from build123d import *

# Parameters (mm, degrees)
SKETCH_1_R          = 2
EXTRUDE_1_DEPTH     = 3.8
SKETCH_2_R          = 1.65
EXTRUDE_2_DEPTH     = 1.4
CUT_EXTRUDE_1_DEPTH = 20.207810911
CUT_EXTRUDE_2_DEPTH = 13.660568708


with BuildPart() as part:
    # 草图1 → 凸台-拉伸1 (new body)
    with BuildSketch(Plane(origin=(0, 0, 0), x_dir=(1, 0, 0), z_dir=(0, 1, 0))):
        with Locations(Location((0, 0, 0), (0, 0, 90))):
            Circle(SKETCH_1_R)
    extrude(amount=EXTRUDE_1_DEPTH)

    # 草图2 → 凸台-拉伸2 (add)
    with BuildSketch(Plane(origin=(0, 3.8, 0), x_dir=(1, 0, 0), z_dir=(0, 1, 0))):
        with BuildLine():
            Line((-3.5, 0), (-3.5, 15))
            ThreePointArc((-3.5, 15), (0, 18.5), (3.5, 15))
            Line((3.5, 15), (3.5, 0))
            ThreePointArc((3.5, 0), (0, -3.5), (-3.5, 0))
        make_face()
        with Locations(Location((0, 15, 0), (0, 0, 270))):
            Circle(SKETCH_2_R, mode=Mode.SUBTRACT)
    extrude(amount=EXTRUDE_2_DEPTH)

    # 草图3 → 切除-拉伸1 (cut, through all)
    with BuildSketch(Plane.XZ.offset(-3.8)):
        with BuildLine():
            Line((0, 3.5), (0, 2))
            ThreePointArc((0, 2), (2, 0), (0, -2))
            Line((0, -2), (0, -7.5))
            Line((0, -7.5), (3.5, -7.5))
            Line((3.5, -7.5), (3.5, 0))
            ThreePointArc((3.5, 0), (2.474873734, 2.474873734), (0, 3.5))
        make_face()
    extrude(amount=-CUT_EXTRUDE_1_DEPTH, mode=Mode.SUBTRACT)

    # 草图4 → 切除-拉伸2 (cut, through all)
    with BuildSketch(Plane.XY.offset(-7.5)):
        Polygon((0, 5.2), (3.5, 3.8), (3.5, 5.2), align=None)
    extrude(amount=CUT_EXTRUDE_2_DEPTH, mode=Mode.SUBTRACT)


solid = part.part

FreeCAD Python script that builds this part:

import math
import FreeCAD as App
import Part
import Sketcher

V = App.Vector

doc = App.newDocument("Part")
body = doc.addObject("PartDesign::Body", "Body")

sketch1 = doc.addObject("Sketcher::SketchObject", "Sketch")
body.addObject(sketch1)
sketch1.AttachmentSupport = (doc.XZ_Plane, [""])
sketch1.MapMode = "FlatFace"
sketch1.addGeometry(Part.Circle(V(0, 0, 0), V(0, 0, 1), 2), False)
sketch1.addConstraint(Sketcher.Constraint("Coincident", 0, 3, -1, 1))
sketch1.addConstraint(Sketcher.Constraint("Diameter", 0, 4.0))
pad1 = doc.addObject("PartDesign::Pad", "Pad")
body.addObject(pad1)
pad1.Profile = sketch1
pad1.Length = 3.8
pad1.Reversed = True

sketch2 = doc.addObject("Sketcher::SketchObject", "Sketch001")
body.addObject(sketch2)
sketch2.AttachmentSupport = (doc.XZ_Plane, [""])
sketch2.MapMode = "FlatFace"
sketch2.AttachmentOffset = App.Placement(V(0, 0, -3.8), App.Rotation())
sketch2.addGeometry(Part.LineSegment(V(-3.5, -15, 0), V(-3.5, 0, 0)), False)
sketch2.addGeometry(Part.ArcOfCircle(Part.Circle(V(0, 0, 0), V(0, 0, 1), 3.5), math.radians(0), math.radians(180)), False)
sketch2.addGeometry(Part.LineSegment(V(3.5, 0, 0), V(3.5, -15, 0)), False)
sketch2.addGeometry(Part.ArcOfCircle(Part.Circle(V(0, -15, 0), V(0, 0, 1), 3.5), math.radians(180), math.radians(360)), False)
sketch2.addGeometry(Part.Circle(V(0, -15, 0), V(0, 0, 1), 1.6), False)
sketch2.addConstraint(Sketcher.Constraint("Tangent", 0, 2, 1, 2))
sketch2.addConstraint(Sketcher.Constraint("Tangent", 1, 1, 2, 1))
sketch2.addConstraint(Sketcher.Constraint("Tangent", 2, 2, 3, 2))
sketch2.addConstraint(Sketcher.Constraint("Tangent", 3, 1, 0, 1))
sketch2.addConstraint(Sketcher.Constraint("Vertical", 0))
sketch2.addConstraint(Sketcher.Constraint("Vertical", 2))
sketch2.addConstraint(Sketcher.Constraint("Coincident", 1, 3, -1, 1))
sketch2.addConstraint(Sketcher.Constraint("Coincident", 4, 3, 3, 3))
sketch2.addConstraint(Sketcher.Constraint("Diameter", 4, 3.3))
sketch2.addConstraint(Sketcher.Constraint("Radius", 1, 3.5))
sketch2.addConstraint(Sketcher.Constraint("DistanceY", 0, 1, 0, 2, 15.0))
pad2 = doc.addObject("PartDesign::Pad", "Pad001")
body.addObject(pad2)
pad2.Profile = sketch2
pad2.Length = 1.4
pad2.Reversed = True

sketch3 = doc.addObject("Sketcher::SketchObject", "Sketch002")
body.addObject(sketch3)
sketch3.AttachmentSupport = (doc.XZ_Plane, [""])
sketch3.MapMode = "FlatFace"
sketch3.AttachmentOffset = App.Placement(V(0, 0, -3.8), App.Rotation())
sketch3.addGeometry(Part.LineSegment(V(0, 3.5, 0), V(0, 2, 0)), False)
sketch3.addGeometry(Part.ArcOfCircle(Part.Circle(V(0, 0, 0), V(0, 0, 1), 2), math.radians(-90), math.radians(90)), False)
sketch3.addGeometry(Part.LineSegment(V(0, -2, 0), V(0, -7.5, 0)), False)
sketch3.addGeometry(Part.LineSegment(V(0, -7.5, 0), V(3.5, -7.5, 0)), False)
sketch3.addGeometry(Part.LineSegment(V(3.5, -7.5, 0), V(3.5, 0, 0)), False)
sketch3.addGeometry(Part.ArcOfCircle(Part.Circle(V(0, 0, 0), V(0, 0, 1), 3.5), math.radians(0), math.radians(90)), False)
sketch3.addConstraint(Sketcher.Constraint("Coincident", 0, 2, 1, 2))
sketch3.addConstraint(Sketcher.Constraint("Coincident", 1, 1, 2, 1))
sketch3.addConstraint(Sketcher.Constraint("Coincident", 2, 2, 3, 1))
sketch3.addConstraint(Sketcher.Constraint("Coincident", 3, 2, 4, 1))
sketch3.addConstraint(Sketcher.Constraint("Tangent", 4, 2, 5, 1))
sketch3.addConstraint(Sketcher.Constraint("Coincident", 5, 2, 0, 1))
sketch3.addConstraint(Sketcher.Constraint("Vertical", 0))
sketch3.addConstraint(Sketcher.Constraint("Vertical", 2))
sketch3.addConstraint(Sketcher.Constraint("Horizontal", 3))
sketch3.addConstraint(Sketcher.Constraint("Vertical", 4))
sketch3.addConstraint(Sketcher.Constraint("Coincident", 1, 3, -1, 1))
sketch3.addConstraint(Sketcher.Constraint("Coincident", 5, 3, -1, 1))
sketch3.addConstraint(Sketcher.Constraint("PointOnObject", 0, 2, -2))
sketch3.addConstraint(Sketcher.Constraint("PointOnObject", 1, 1, -2))
sketch3.addConstraint(Sketcher.Constraint("Radius", 1, 2.0))
sketch3.addConstraint(Sketcher.Constraint("Radius", 5, 3.5))
sketch3.addConstraint(Sketcher.Constraint("DistanceY", 2, 2, 2, 1, 5.5))
pocket1 = doc.addObject("PartDesign::Pocket", "Pocket")
body.addObject(pocket1)
pocket1.Profile = sketch3
pocket1.Type = "ThroughAll"

sketch4 = doc.addObject("Sketcher::SketchObject", "Sketch003")
body.addObject(sketch4)
sketch4.AttachmentSupport = (doc.XY_Plane, [""])
sketch4.MapMode = "FlatFace"
sketch4.AttachmentOffset = App.Placement(V(0, 0, -7.5), App.Rotation())
sketch4.addGeometry(Part.LineSegment(V(0, 5.2, 0), V(3.5, 3.8, 0)), False)
sketch4.addGeometry(Part.LineSegment(V(3.5, 3.8, 0), V(3.5, 5.2, 0)), False)
sketch4.addGeometry(Part.LineSegment(V(3.5, 5.2, 0), V(0, 5.2, 0)), False)
sketch4.addConstraint(Sketcher.Constraint("Coincident", 0, 2, 1, 1))
sketch4.addConstraint(Sketcher.Constraint("Coincident", 1, 2, 2, 1))
sketch4.addConstraint(Sketcher.Constraint("Coincident", 2, 2, 0, 1))
sketch4.addConstraint(Sketcher.Constraint("Vertical", 1))
sketch4.addConstraint(Sketcher.Constraint("Horizontal", 2))
sketch4.addConstraint(Sketcher.Constraint("PointOnObject", 2, 2, -2))
sketch4.addConstraint(Sketcher.Constraint("DistanceX", 2, 2, 2, 1, 3.5))
sketch4.addConstraint(Sketcher.Constraint("DistanceY", 1, 1, 1, 2, 1.4))
sketch4.addConstraint(Sketcher.Constraint("DistanceY", -1, 1, 0, 2, 3.8))
pocket2 = doc.addObject("PartDesign::Pocket", "Pocket001")
body.addObject(pocket2)
pocket2.Profile = sketch4
pocket2.Type = "ThroughAll"
pocket2.Reversed = True

doc.recompute()
